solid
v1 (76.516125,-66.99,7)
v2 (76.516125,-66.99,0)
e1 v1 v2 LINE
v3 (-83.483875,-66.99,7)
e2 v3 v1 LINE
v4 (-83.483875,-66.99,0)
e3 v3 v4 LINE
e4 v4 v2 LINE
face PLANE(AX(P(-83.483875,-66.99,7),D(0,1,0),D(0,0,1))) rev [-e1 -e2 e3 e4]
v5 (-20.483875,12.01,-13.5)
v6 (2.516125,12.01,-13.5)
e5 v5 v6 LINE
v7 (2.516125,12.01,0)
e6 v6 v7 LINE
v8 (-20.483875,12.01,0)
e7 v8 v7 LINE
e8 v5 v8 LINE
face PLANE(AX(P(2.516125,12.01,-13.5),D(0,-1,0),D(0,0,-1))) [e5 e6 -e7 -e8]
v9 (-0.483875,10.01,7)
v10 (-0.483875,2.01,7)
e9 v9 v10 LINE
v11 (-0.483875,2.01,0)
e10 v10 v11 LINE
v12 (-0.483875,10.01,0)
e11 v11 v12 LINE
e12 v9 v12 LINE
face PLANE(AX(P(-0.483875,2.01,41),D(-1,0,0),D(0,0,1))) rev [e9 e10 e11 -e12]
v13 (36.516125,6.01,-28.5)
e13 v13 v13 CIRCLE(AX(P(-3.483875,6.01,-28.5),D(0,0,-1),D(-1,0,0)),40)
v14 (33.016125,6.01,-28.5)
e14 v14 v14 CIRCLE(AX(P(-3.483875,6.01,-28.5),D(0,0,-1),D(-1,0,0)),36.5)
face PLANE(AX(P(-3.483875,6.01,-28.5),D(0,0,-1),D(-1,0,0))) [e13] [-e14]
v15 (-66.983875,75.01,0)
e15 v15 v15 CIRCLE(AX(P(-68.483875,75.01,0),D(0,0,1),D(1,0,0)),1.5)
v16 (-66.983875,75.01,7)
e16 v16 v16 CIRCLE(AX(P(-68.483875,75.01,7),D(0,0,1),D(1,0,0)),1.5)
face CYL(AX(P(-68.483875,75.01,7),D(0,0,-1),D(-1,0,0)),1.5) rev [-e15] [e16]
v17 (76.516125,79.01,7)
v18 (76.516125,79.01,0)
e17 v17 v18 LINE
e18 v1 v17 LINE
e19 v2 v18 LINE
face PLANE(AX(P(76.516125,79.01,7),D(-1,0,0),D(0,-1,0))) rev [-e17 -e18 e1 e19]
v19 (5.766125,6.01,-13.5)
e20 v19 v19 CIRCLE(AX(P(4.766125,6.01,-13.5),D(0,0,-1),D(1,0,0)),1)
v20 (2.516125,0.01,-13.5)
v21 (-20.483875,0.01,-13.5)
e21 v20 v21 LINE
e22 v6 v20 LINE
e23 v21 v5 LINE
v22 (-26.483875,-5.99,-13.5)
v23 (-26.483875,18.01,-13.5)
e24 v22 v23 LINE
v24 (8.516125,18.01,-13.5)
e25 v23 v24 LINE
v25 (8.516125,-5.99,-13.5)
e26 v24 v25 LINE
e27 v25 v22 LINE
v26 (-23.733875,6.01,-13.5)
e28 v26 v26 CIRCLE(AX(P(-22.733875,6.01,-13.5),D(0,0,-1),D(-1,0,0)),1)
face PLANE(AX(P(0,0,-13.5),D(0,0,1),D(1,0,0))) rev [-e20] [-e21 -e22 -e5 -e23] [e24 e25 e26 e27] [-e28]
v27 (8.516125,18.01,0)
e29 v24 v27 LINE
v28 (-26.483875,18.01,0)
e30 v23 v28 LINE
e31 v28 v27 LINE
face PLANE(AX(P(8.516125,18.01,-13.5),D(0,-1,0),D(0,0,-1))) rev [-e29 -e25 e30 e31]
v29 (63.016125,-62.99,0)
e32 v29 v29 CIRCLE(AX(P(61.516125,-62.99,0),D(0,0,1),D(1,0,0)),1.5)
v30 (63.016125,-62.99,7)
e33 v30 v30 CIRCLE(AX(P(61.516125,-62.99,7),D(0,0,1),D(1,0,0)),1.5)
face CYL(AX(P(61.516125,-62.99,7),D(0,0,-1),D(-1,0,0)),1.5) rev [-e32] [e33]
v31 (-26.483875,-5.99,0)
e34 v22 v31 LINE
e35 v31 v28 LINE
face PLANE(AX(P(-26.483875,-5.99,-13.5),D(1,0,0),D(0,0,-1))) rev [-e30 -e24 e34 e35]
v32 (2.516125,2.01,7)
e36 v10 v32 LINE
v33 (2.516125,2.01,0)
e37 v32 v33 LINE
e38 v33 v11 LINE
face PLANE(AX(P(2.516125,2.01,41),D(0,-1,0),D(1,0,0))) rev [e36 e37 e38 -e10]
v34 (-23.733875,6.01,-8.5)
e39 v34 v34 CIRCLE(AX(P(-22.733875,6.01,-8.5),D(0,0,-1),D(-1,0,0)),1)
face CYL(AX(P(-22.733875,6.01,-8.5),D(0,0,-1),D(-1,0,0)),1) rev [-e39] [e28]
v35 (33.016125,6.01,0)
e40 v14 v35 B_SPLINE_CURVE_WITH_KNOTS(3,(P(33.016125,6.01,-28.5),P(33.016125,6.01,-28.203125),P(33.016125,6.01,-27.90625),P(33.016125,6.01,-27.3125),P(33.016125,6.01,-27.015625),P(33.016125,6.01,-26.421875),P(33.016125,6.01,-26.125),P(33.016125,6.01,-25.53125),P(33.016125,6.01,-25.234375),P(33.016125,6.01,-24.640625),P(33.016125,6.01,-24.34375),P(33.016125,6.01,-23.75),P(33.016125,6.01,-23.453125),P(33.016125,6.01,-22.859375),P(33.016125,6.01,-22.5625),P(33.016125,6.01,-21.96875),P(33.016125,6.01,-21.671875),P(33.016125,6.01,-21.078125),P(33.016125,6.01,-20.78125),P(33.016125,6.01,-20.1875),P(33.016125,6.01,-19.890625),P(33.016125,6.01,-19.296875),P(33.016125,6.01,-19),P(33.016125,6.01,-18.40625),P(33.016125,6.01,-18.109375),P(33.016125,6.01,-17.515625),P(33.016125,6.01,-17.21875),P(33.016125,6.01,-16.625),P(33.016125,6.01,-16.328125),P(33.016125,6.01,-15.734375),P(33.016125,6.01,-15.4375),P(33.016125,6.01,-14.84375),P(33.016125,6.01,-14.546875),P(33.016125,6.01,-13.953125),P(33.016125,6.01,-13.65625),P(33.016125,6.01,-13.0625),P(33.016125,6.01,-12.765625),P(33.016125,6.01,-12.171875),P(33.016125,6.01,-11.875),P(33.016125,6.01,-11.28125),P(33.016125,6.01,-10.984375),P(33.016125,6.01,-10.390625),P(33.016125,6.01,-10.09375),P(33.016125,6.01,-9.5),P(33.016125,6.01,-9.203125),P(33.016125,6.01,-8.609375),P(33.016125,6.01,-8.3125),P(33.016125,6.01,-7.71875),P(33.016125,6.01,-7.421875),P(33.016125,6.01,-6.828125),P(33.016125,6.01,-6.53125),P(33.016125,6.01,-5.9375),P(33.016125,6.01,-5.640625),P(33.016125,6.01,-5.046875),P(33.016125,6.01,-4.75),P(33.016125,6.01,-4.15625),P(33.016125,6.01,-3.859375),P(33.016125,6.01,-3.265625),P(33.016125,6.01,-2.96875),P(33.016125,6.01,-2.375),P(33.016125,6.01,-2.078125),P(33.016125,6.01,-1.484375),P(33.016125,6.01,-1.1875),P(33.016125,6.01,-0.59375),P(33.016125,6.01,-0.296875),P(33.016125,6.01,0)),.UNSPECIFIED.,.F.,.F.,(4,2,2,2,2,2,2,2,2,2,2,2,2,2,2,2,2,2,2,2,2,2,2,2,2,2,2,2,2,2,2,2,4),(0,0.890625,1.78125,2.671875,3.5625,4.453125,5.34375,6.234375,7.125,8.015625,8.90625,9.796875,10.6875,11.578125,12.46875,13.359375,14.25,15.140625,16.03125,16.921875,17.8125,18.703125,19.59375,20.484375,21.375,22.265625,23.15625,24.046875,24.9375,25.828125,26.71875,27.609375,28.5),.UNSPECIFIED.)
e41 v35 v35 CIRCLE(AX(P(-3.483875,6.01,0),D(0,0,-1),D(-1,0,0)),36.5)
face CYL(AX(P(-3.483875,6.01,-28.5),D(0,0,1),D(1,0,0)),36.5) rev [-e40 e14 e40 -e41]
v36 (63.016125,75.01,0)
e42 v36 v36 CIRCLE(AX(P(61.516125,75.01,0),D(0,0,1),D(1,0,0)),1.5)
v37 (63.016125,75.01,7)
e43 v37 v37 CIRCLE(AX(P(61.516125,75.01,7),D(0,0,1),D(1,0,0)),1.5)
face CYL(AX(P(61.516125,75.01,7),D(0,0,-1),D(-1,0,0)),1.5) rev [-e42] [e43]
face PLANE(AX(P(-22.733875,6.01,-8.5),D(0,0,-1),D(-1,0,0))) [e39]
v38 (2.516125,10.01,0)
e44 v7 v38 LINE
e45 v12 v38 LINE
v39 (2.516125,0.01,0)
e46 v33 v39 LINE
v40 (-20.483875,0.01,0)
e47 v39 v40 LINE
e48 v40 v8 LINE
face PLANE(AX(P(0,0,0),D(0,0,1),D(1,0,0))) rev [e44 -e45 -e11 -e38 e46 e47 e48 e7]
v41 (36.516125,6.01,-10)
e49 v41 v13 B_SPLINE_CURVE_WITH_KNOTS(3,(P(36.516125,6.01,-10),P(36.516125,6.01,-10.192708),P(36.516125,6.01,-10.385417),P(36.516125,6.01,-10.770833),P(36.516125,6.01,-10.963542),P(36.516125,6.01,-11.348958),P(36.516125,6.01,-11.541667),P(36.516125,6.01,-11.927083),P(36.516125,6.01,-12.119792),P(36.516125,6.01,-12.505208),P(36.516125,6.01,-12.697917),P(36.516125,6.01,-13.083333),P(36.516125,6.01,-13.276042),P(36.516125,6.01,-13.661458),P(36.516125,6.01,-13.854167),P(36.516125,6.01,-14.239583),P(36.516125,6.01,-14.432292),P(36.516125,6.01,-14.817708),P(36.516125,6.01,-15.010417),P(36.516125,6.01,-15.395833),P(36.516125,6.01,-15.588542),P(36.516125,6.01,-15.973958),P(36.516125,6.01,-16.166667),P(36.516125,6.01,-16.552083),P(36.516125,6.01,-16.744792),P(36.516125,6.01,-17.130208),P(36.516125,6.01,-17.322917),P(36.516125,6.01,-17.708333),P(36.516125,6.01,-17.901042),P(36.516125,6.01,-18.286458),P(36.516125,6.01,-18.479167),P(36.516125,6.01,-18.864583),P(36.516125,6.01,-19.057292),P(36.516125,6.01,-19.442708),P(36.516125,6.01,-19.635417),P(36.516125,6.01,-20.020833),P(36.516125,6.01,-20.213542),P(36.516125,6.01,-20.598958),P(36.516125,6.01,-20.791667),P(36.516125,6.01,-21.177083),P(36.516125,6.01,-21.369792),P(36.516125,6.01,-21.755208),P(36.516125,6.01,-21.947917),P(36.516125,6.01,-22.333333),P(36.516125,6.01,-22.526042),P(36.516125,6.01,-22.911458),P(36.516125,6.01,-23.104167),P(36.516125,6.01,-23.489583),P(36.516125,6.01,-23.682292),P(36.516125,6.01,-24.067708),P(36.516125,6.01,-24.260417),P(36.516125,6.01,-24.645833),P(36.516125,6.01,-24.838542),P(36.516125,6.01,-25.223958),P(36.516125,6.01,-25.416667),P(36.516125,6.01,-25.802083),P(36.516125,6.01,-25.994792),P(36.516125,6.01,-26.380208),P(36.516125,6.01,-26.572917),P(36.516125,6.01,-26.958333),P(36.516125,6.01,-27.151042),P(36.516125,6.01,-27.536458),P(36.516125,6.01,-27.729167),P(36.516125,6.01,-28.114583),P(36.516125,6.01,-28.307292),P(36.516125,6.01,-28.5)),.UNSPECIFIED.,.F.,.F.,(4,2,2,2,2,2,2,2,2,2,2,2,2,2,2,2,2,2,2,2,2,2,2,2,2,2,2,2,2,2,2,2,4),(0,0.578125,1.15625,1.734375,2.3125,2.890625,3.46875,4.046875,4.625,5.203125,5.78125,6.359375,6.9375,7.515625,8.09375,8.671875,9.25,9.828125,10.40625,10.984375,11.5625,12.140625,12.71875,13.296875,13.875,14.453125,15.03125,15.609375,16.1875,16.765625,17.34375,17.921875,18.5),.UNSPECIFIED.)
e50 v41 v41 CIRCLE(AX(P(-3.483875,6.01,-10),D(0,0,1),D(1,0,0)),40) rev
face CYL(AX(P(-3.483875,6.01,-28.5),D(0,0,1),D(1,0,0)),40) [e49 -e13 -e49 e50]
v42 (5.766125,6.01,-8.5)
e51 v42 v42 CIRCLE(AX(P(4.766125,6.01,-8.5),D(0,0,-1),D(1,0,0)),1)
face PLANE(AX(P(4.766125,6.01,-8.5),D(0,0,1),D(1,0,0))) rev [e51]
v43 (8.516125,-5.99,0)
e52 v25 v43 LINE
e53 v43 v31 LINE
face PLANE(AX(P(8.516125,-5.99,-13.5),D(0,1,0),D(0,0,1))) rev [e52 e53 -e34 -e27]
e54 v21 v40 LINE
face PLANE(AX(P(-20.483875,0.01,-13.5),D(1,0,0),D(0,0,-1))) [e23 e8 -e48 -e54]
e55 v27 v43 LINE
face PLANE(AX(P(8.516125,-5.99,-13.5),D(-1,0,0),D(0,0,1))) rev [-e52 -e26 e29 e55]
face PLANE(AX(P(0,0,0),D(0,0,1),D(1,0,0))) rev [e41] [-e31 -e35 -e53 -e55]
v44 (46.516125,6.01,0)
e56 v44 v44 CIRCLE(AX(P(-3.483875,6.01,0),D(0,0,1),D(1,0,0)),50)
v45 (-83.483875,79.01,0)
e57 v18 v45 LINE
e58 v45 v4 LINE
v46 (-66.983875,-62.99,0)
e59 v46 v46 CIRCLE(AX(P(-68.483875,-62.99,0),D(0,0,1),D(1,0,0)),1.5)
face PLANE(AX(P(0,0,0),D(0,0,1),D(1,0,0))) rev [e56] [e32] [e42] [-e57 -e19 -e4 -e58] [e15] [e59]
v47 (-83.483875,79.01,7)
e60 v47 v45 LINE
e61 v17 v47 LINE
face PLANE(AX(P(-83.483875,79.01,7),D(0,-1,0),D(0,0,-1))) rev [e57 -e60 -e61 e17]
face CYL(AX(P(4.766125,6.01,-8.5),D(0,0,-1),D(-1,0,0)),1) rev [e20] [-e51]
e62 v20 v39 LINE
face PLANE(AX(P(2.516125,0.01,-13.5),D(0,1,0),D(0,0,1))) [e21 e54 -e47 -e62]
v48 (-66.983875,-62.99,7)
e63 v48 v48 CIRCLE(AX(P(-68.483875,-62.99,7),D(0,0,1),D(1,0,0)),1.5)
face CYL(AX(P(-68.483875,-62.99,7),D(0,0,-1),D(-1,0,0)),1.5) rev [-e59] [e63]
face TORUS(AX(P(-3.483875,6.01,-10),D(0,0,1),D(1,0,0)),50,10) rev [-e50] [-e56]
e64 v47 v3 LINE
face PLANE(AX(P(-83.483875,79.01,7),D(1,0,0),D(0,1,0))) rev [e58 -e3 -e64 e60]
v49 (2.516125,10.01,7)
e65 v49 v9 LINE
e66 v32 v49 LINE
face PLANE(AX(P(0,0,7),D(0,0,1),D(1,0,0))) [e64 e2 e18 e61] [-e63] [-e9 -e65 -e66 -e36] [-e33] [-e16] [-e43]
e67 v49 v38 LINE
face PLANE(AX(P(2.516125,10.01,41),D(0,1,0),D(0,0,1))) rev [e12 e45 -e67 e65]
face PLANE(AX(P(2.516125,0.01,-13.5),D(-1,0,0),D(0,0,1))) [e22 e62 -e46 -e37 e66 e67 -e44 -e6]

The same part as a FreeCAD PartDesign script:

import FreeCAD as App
import Part
import Sketcher


def edges_at(feature, points):
    """Names of the edges that pass closest to the given points."""
    edges = feature.Shape.Edges
    near = lambda p: min(range(len(edges)), key=lambda i: edges[i].distToShape(Part.Vertex(*p))[0])
    return sorted({f"Edge{near(p) + 1}" for p in points})


def add_polygon(sketch, points):
    """Adds a closed chain of lines whose ends are joined by coincident constraints."""
    first, n = sketch.GeometryCount, len(points)
    for a, b in zip(points, points[1:] + points[:1]):
        sketch.addGeometry(Part.LineSegment(App.Vector(*a, 0), App.Vector(*b, 0)), False)
    for i in range(n):
        sketch.addConstraint(Sketcher.Constraint("Coincident", first + i, 2, first + (i + 1) % n, 1))

doc = App.newDocument("Part")
body = doc.addObject("PartDesign::Body", "Body")

# Sketch on XY plane
sketch1 = body.newObject("Sketcher::SketchObject", "Sketch")
sketch1.AttachmentSupport = (doc.getObject("XY_Plane"), [""])
sketch1.MapMode = "FlatFace"
add_polygon(sketch1, [(-83.5, 79), (-83.5, -67), (76.5, -67), (76.5, 79)])  # lines 0-3
sketch1.addGeometry(Part.Circle(App.Vector(-68.5, -63, 0), App.Vector(0, 0, 1), 1.5), False)  # 4
sketch1.addGeometry(Part.Circle(App.Vector(61.5, -63, 0), App.Vector(0, 0, 1), 1.5), False)  # 5
sketch1.addGeometry(Part.Circle(App.Vector(-68.5, 75, 0), App.Vector(0, 0, 1), 1.5), False)  # 6
sketch1.addGeometry(Part.Circle(App.Vector(61.5, 75, 0), App.Vector(0, 0, 1), 1.5), False)  # 7
sketch1.addConstraint([
    Sketcher.Constraint("Vertical", 0),
    Sketcher.Constraint("Horizontal", 1),
    Sketcher.Constraint("Vertical", 2),
    Sketcher.Constraint("Horizontal", 3),
    Sketcher.Constraint("Equal", 4, 5),
    Sketcher.Constraint("Equal", 5, 6),
    Sketcher.Constraint("Equal", 6, 7),
    Sketcher.Constraint("Horizontal", 4, 3, 5, 3),
    Sketcher.Constraint("Horizontal", 6, 3, 7, 3),
    Sketcher.Constraint("Vertical", 4, 3, 6, 3),
    Sketcher.Constraint("Vertical", 5, 3, 7, 3),
    Sketcher.Constraint("Diameter", 4, 3.0),
    Sketcher.Constraint("DistanceX", 1, 1, 1, 2, 160.0),
    Sketcher.Constraint("DistanceY", 0, 2, 0, 1, 146.0),
    Sketcher.Constraint("DistanceX", 4, 3, 5, 3, 130.0),
    Sketcher.Constraint("DistanceY", 4, 3, 6, 3, 138.0),
    Sketcher.Constraint("DistanceX", 0, 2, 4, 3, 15.0),
    Sketcher.Constraint("DistanceY", 0, 2, 4, 3, 4.0),
    Sketcher.Constraint("DistanceY", 4, 3, -1, 1, 62.99),
    Sketcher.Constraint("DistanceX", 4, 3, -1, 1, 68.483875),
])
pad1 = body.newObject("PartDesign::Pad", "Pad")
pad1.Profile = sketch1
pad1.Length = 7

# Sketch on XY plane
sketch2 = body.newObject("Sketcher::SketchObject", "Sketch001")
sketch2.AttachmentSupport = (doc.getObject("XY_Plane"), [""])
sketch2.MapMode = "FlatFace"
add_polygon(sketch2, [(9, 18), (9, -6), (-26, -6), (-26, 18)])  # lines 0-3
add_polygon(sketch2, [(-20, 0), (3, 0), (3, 12), (-20, 12)])  # lines 4-7
sketch2.addConstraint([
    Sketcher.Constraint("Vertical", 0),
    Sketcher.Constraint("Horizontal", 1),
    Sketcher.Constraint("Vertical", 2),
    Sketcher.Constraint("Horizontal", 3),
    Sketcher.Constraint("Horizontal", 4),
    Sketcher.Constraint("Vertical", 5),
    Sketcher.Constraint("Horizontal", 6),
    Sketcher.Constraint("Vertical", 7),
    Sketcher.Constraint("DistanceX", 1, 2, 1, 1, 35.0),
    Sketcher.Constraint("DistanceX", 4, 1, 4, 2, 23.0),
    Sketcher.Constraint("DistanceY", 0, 2, 0, 1, 24.0),
    Sketcher.Constraint("DistanceY", 5, 1, 5, 2, 12.0),
    Sketcher.Constraint("DistanceX", 4, 2, 0, 2, 6.0),
    Sketcher.Constraint("DistanceY", 0, 2, 4, 2, 6.0),
    Sketcher.Constraint("DistanceY", 0, 2, -1, 1, 5.99),
    Sketcher.Constraint("DistanceX", -1, 1, 0, 2, 8.516125),
])
pad2 = body.newObject("PartDesign::Pad", "Pad001")
pad2.Profile = sketch2
pad2.Length = 13.5
pad2.Reversed = True

# Sketch on XY plane
sketch3 = body.newObject("Sketcher::SketchObject", "Sketch002")
sketch3.AttachmentSupport = (doc.getObject("XY_Plane"), [""])
sketch3.MapMode = "FlatFace"
sketch3.AttachmentOffset = App.Placement(App.Vector(0, 0, -13.5), App.Rotation())
sketch3.addGeometry([
    Part.Circle(App.Vector(-22.7, 6, 0), App.Vector(0, 0, 1), 1),
    Part.Circle(App.Vector(4.8, 6, 0), App.Vector(0, 0, 1), 1),
], False)
sketch3.addConstraint([
    Sketcher.Constraint("Equal", 0, 1),
    Sketcher.Constraint("Horizontal", 0, 3, 1, 3),
    Sketcher.Constraint("Diameter", 0, 2.0),
    Sketcher.Constraint("DistanceX", 0, 3, 1, 3, 27.5),
    Sketcher.Constraint("DistanceY", -1, 1, 0, 3, 6.01),
    Sketcher.Constraint("DistanceX", 0, 3, -1, 1, 22.733875),
])
pocket1 = body.newObject("PartDesign::Pocket", "Pocket")
pocket1.Profile = sketch3
pocket1.Length = 5
pocket1.Reversed = True

# Sketch on XY plane
sketch4 = body.newObject("Sketcher::SketchObject", "Sketch003")
sketch4.AttachmentSupport = (doc.getObject("XY_Plane"), [""])
sketch4.MapMode = "FlatFace"
sketch4.addGeometry([
    Part.Circle(App.Vector(-3, 6, 0), App.Vector(0, 0, 1), 40),
    Part.Circle(App.Vector(-3, 6, 0), App.Vector(0, 0, 1), 36),
], False)
sketch4.addConstraint([
    Sketcher.Constraint("Coincident", 1, 3, 0, 3),
    Sketcher.Constraint("Diameter", 0, 80.0),
    Sketcher.Constraint("Diameter", 1, 73.0),
    Sketcher.Constraint("DistanceY", -1, 1, 0, 3, 6.01),
    Sketcher.Constraint("DistanceX", 0, 3, -1, 1, 3.483875),
])
pad3 = body.newObject("PartDesign::Pad", "Pad002")
pad3.Profile = sketch4
pad3.Length = 28.5
pad3.Reversed = True
doc.recompute()

fillet = body.newObject("PartDesign::Fillet", "Fillet")
fillet.Base = (pad3, edges_at(pad3, [(-43.484, 6.01, 0)]))
fillet.Radius = 10

# Sketch on XY plane
sketch5 = body.newObject("Sketcher::SketchObject", "Sketch004")
sketch5.AttachmentSupport = (doc.getObject("XY_Plane"), [""])
sketch5.MapMode = "FlatFace"
add_polygon(sketch5, [(2.5, 10), (2.5, 2), (-0.5, 2), (-0.5, 10)])  # lines 0-3
sketch5.addConstraint([
    Sketcher.Constraint("Vertical", 0),
    Sketcher.Constraint("Horizontal", 1),
    Sketcher.Constraint("Vertical", 2),
    Sketcher.Constraint("Horizontal", 3),
    Sketcher.Constraint("DistanceX", 1, 2, 1, 1, 3.0),
    Sketcher.Constraint("DistanceY", 0, 2, 0, 1, 8.0),
    Sketcher.Constraint("DistanceY", -1, 1, 0, 2, 2.01),
    Sketcher.Constraint("DistanceX", -1, 1, 0, 2, 2.516125),
])
pocket2 = body.newObject("PartDesign::Pocket", "Pocket001")
pocket2.Profile = sketch5
pocket2.Length = 41
pocket2.Reversed = True

doc.recompute()
